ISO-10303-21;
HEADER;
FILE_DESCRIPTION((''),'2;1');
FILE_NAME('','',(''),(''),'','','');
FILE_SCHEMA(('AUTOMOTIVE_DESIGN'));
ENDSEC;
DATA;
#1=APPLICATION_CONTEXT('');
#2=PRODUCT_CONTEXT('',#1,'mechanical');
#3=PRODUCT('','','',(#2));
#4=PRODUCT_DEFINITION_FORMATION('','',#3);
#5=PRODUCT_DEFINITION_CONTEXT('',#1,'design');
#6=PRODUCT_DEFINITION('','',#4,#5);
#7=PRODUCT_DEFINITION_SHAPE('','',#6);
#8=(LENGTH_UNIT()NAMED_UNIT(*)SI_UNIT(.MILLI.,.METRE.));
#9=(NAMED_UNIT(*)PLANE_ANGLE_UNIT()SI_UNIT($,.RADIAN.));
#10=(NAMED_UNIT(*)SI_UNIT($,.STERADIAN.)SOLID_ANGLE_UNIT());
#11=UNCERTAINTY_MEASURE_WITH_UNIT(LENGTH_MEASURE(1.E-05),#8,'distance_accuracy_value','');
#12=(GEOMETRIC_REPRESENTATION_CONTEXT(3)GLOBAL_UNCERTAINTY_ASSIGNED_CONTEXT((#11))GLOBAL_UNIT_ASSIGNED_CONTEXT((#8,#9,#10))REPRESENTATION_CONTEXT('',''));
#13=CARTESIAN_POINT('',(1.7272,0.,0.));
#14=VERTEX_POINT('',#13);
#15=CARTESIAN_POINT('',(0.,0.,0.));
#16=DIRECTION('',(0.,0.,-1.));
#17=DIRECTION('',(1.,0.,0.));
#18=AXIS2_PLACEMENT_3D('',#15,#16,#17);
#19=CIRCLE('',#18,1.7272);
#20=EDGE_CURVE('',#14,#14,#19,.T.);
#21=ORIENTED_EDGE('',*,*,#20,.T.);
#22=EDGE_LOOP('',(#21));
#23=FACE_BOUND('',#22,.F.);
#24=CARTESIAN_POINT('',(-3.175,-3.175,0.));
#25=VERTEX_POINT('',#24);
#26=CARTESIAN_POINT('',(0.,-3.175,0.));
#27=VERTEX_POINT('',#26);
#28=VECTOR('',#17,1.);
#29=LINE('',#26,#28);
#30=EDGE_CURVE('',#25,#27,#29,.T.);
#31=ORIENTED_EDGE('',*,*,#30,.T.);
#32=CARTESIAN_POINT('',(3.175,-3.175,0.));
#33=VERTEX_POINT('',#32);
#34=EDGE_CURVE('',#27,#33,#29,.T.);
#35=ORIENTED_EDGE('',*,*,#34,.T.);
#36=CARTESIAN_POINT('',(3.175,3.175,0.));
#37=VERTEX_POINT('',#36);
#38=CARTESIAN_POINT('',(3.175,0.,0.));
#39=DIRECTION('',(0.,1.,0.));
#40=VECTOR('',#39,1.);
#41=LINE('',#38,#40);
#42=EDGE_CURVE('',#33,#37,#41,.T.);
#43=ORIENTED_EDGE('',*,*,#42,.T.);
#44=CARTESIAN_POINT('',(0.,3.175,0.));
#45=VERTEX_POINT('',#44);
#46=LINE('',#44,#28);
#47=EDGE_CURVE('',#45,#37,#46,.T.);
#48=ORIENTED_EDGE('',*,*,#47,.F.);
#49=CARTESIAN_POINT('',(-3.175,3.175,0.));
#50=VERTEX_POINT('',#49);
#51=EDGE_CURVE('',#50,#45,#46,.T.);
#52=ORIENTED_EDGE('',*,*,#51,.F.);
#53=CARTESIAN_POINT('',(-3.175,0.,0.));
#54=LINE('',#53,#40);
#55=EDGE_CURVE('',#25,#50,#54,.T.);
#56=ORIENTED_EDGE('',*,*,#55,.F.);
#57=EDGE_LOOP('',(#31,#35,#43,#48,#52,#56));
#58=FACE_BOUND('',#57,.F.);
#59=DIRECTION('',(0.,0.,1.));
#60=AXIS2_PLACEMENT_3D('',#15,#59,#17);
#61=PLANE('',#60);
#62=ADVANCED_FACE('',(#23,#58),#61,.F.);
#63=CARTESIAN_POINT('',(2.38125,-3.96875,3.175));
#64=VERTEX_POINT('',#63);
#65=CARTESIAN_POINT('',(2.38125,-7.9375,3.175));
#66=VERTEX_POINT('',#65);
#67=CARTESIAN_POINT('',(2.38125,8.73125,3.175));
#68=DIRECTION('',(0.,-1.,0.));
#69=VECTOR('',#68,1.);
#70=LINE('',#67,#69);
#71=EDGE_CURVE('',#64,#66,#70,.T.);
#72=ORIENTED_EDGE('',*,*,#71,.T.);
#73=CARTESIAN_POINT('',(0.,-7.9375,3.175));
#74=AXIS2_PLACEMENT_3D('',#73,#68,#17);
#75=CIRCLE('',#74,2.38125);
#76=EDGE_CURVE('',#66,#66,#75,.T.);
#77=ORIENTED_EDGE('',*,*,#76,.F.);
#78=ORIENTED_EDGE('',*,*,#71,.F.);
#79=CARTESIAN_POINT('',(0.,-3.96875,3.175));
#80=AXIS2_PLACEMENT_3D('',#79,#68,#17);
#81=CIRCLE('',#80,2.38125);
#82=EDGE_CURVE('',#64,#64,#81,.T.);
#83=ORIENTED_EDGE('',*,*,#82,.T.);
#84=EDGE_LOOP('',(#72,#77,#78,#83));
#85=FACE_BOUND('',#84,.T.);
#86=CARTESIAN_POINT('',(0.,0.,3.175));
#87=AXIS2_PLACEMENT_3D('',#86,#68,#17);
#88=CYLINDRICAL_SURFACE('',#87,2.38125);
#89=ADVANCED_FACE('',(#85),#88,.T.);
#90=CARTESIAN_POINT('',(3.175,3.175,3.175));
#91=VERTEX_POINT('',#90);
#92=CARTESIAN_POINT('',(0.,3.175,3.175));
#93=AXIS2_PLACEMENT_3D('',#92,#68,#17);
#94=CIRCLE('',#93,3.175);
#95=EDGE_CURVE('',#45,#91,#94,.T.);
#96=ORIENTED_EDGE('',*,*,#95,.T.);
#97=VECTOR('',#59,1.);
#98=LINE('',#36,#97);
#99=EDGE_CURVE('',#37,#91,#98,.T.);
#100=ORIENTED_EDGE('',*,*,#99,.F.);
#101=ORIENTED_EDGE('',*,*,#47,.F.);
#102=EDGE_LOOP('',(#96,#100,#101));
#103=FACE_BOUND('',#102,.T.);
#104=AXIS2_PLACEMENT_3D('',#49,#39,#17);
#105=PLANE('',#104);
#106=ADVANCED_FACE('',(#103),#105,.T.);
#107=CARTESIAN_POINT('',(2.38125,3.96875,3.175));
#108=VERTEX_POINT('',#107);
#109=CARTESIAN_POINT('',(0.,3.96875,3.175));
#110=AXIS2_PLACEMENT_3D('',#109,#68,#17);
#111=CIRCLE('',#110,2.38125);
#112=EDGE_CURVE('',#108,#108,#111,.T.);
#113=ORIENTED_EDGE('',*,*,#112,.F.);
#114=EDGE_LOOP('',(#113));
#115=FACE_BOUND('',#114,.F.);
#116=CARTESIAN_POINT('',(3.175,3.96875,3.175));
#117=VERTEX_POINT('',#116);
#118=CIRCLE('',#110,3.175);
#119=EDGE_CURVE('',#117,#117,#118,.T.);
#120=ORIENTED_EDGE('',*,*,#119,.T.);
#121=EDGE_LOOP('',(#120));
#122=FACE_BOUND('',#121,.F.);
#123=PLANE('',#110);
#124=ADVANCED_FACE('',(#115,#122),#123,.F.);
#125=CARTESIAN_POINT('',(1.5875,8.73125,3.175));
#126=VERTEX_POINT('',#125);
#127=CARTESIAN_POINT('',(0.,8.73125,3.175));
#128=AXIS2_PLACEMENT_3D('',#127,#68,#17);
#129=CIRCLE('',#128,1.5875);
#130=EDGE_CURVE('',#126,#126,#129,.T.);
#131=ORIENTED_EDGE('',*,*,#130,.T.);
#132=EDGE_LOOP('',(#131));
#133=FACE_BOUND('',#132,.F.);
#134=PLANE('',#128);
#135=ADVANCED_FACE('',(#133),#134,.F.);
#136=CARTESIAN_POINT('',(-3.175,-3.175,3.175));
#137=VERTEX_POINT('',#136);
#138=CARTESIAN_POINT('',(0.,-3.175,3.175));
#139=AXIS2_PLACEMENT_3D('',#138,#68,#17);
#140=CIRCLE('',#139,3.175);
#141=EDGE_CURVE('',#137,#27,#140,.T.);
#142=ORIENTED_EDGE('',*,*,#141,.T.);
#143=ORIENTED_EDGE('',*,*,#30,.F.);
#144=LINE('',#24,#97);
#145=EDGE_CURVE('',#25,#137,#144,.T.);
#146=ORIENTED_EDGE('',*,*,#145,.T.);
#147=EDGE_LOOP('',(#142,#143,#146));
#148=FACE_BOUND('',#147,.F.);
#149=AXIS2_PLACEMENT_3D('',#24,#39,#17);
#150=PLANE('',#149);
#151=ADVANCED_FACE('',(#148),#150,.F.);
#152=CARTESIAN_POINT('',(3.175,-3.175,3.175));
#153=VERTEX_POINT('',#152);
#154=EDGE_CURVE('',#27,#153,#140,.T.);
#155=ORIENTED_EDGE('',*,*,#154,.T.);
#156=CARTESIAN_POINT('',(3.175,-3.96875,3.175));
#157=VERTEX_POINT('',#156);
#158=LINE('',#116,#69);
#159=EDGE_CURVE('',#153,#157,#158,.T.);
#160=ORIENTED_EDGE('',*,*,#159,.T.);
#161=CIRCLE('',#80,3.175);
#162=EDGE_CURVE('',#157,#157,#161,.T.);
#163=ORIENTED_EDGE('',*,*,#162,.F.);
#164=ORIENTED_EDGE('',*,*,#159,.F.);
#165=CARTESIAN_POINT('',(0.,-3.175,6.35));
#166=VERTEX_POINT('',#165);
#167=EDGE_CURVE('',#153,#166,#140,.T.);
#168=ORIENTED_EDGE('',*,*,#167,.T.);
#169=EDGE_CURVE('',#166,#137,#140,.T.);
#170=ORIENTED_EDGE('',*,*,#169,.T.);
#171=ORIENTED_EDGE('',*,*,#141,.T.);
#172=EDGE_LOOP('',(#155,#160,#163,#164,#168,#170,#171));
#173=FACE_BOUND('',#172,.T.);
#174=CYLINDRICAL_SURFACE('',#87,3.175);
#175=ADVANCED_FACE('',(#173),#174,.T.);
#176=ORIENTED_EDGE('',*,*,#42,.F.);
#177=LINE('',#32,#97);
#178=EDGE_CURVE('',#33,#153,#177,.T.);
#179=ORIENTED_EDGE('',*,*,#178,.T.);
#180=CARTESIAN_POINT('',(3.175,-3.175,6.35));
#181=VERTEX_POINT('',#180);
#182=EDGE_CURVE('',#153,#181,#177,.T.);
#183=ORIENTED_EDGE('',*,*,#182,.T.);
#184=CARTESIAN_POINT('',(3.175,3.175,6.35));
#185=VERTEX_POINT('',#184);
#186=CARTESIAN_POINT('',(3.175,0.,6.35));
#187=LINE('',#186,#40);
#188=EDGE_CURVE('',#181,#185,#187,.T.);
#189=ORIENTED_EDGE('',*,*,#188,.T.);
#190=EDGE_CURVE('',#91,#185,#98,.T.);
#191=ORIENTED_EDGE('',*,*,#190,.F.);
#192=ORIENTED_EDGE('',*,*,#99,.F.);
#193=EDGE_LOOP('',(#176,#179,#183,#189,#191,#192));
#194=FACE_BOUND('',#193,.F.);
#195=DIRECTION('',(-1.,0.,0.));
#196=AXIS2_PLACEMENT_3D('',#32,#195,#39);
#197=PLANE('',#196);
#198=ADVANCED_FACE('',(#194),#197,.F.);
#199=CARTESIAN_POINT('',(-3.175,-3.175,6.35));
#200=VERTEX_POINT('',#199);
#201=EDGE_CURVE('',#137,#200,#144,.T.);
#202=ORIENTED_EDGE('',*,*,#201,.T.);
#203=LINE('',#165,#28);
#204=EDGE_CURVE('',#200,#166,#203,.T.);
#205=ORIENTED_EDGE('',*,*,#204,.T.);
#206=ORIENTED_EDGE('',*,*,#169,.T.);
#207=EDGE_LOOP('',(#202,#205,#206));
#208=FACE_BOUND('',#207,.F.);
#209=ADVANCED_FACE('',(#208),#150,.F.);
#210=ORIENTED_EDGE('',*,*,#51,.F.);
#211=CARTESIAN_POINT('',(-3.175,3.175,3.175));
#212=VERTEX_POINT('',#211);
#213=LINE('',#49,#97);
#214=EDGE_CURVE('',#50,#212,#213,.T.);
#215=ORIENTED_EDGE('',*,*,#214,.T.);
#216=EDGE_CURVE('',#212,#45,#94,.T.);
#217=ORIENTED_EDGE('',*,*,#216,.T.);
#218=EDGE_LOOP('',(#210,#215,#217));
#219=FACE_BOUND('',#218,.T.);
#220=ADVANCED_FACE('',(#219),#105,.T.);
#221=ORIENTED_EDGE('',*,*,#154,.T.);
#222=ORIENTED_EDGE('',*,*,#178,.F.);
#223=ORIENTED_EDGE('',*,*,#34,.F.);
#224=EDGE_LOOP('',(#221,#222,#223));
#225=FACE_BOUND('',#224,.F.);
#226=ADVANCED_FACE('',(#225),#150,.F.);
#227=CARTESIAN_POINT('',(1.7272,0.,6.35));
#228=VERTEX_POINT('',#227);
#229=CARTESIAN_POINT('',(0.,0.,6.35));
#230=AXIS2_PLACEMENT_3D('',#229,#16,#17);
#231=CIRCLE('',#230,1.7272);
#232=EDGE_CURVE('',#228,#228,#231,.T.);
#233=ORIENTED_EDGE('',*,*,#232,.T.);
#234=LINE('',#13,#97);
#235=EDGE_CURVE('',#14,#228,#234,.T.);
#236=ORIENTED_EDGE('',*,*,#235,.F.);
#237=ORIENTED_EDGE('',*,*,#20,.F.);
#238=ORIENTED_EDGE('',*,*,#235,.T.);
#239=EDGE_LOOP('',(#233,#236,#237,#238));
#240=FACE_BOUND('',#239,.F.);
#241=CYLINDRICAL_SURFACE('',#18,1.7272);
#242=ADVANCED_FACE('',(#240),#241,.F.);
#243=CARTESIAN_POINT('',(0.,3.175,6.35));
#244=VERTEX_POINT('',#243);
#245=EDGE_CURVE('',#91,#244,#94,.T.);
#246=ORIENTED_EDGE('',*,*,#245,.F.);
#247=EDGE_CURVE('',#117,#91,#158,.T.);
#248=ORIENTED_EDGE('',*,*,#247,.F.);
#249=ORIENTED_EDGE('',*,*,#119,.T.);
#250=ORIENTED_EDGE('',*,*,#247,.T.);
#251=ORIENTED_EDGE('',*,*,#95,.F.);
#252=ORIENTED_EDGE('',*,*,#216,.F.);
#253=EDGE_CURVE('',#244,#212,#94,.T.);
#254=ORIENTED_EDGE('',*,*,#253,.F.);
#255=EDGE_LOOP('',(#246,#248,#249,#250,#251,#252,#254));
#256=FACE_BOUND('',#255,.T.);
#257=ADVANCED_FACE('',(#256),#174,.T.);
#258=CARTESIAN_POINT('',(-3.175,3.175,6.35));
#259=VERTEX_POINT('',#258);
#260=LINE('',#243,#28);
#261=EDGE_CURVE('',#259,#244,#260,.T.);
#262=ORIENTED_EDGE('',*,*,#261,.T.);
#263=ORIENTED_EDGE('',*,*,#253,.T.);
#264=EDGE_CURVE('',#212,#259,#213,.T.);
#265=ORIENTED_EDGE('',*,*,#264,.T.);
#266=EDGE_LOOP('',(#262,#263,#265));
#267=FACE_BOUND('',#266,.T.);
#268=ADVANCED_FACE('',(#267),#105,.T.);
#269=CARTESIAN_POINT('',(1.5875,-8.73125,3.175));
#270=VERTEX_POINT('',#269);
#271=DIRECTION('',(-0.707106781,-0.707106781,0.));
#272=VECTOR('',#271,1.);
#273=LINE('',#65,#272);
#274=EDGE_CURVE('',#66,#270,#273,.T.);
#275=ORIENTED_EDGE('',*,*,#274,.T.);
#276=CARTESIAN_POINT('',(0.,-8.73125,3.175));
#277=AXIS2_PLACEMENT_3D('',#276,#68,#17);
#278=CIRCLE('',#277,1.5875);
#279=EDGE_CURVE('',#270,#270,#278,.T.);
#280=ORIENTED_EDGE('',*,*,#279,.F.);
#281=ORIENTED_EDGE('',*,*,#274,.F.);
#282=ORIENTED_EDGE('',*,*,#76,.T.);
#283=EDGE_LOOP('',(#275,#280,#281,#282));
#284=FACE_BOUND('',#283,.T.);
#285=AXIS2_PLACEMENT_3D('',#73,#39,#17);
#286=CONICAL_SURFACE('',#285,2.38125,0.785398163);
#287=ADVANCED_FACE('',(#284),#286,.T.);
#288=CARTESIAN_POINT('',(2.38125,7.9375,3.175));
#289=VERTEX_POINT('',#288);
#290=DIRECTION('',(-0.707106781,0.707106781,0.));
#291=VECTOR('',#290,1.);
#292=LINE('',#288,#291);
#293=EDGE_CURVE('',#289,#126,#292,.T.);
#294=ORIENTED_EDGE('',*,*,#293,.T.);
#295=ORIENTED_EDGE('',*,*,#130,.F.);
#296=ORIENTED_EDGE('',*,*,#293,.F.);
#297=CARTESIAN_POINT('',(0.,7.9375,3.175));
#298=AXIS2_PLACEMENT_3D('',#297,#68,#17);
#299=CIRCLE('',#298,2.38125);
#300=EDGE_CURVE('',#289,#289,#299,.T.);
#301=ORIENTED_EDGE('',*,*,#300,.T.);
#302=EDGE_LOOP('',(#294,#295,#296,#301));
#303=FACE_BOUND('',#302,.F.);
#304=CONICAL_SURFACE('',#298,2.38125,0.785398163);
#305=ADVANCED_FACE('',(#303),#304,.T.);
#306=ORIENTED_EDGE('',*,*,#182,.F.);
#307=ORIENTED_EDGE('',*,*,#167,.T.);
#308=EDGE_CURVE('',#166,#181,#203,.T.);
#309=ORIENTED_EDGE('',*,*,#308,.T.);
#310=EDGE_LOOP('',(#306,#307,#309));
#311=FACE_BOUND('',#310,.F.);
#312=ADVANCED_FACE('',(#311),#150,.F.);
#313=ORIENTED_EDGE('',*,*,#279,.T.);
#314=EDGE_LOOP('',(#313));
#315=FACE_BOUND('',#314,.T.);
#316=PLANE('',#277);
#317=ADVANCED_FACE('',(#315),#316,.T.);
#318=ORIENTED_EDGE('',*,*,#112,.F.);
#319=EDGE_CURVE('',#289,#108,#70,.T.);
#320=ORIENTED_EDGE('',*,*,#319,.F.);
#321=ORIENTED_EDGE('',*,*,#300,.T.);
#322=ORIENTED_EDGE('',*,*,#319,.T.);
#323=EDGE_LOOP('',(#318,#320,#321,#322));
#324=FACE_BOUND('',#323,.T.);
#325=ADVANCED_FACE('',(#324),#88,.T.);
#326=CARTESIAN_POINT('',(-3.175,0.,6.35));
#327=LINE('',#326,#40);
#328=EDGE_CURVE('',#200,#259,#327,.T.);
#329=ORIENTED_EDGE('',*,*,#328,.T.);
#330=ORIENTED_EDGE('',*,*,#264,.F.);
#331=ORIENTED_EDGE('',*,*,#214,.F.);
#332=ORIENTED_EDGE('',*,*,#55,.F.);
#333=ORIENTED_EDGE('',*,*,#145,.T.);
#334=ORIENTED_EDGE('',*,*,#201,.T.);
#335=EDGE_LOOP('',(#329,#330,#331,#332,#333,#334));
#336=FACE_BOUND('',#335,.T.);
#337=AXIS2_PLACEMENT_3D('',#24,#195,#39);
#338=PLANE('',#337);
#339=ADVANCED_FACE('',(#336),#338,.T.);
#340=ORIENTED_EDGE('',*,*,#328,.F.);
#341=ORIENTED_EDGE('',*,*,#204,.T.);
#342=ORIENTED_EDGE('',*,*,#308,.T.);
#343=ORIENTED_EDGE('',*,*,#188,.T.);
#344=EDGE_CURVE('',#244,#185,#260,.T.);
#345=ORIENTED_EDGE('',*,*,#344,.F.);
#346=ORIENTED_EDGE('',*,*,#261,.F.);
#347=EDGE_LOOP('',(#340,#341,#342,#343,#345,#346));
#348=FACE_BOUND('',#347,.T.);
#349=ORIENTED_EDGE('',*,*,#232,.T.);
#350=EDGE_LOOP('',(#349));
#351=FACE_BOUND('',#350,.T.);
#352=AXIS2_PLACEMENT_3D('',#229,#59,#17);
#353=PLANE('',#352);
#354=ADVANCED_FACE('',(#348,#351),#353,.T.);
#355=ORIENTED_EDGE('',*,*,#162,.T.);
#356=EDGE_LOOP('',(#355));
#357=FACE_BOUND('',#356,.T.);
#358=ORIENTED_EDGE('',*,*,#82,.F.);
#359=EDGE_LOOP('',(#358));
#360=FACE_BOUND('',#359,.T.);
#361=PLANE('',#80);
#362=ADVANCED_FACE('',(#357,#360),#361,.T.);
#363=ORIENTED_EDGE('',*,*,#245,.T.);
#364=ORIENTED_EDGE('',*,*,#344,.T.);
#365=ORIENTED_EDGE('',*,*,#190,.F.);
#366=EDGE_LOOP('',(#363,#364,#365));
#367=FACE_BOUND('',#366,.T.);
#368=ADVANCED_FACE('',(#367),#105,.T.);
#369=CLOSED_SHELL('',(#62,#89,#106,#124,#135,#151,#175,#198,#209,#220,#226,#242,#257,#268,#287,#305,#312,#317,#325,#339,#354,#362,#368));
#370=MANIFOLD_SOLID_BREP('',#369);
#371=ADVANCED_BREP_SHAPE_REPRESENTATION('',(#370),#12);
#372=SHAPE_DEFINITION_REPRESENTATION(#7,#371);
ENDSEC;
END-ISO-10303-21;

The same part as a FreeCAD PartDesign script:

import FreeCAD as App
import Part
import Sketcher
Q = App.Units.Quantity


def edges_at(feature, points):
    """Names of the edges that pass closest to the given points."""
    edges = feature.Shape.Edges
    near = lambda p: min(range(len(edges)), key=lambda i: edges[i].distToShape(Part.Vertex(*p))[0])
    return sorted({f"Edge{near(p) + 1}" for p in points})

doc = App.newDocument("Part")
body = doc.addObject("PartDesign::Body", "Body")

sketch1 = body.newObject("Sketcher::SketchObject", "Sketch")
sketch1.AttachmentSupport = (doc.getObject("XY_Plane"), [""])
sketch1.MapMode = "FlatFace"
sketch1.addGeometry([
    Part.LineSegment(App.Vector(-3, 3, 0), App.Vector(-3, -3, 0)),
    Part.LineSegment(App.Vector(-3, -3, 0), App.Vector(3, -3, 0)),
    Part.LineSegment(App.Vector(3, -3, 0), App.Vector(3, 3, 0)),
    Part.LineSegment(App.Vector(3, 3, 0), App.Vector(-3, 3, 0)),
], False)
sketch1.addConstraint([
    Sketcher.Constraint("Coincident", 0, 2, 1, 1),
    Sketcher.Constraint("Coincident", 1, 2, 2, 1),
    Sketcher.Constraint("Coincident", 2, 2, 3, 1),
    Sketcher.Constraint("Coincident", 3, 2, 0, 1),
    Sketcher.Constraint("Vertical", 0),
    Sketcher.Constraint("Horizontal", 1),
    Sketcher.Constraint("Vertical", 2),
    Sketcher.Constraint("Horizontal", 3),
    Sketcher.Constraint("Symmetric", 0, 2, 2, 2, -1, 1),
    Sketcher.Constraint("Equal", 3, 0),
    Sketcher.Constraint("DistanceX", 1, 1, 1, 2, Q("0.25 in")),
])
pad1 = body.newObject("PartDesign::Pad", "Pad")
pad1.Profile = sketch1
pad1.Length = Q("0.25 in")

sketch2 = body.newObject("Sketcher::SketchObject", "Sketch001")
sketch2.AttachmentSupport = (doc.getObject("XZ_Plane"), [""])
sketch2.MapMode = "FlatFace"
sketch2.addGeometry(Part.Circle(App.Vector(0, 3.2, 0), App.Vector(0, 0, 1), 3.2), False)
sketch2.addConstraint([
    Sketcher.Constraint("PointOnObject", 0, 3, -2),
    Sketcher.Constraint("Diameter", 0, Q("0.25 in")),
    Sketcher.Constraint("DistanceY", -1, 1, 0, 3, Q("0.125 in")),
])
pad2 = body.newObject("PartDesign::Pad", "Pad001")
pad2.Profile = sketch2
pad2.Length = Q("0.3125 in")
pad2.Midplane = True

sketch3 = body.newObject("Sketcher::SketchObject", "Sketch002")
sketch3.AttachmentSupport = (doc.getObject("XZ_Plane"), [""])
sketch3.MapMode = "FlatFace"
sketch3.addGeometry(Part.Circle(App.Vector(0, 3.2, 0), App.Vector(0, 0, 1), 2.4), False)
sketch3.addConstraint([
    Sketcher.Constraint("PointOnObject", 0, 3, -2),
    Sketcher.Constraint("Diameter", 0, Q("0.1875 in")),
    Sketcher.Constraint("DistanceY", -1, 1, 0, 3, Q("0.125 in")),
])
pad3 = body.newObject("PartDesign::Pad", "Pad002")
pad3.Profile = sketch3
pad3.Length = Q("0.6875 in")
pad3.Midplane = True

sketch4 = body.newObject("Sketcher::SketchObject", "Sketch003")
sketch4.AttachmentSupport = (doc.getObject("XY_Plane"), [""])
sketch4.MapMode = "FlatFace"
sketch4.addGeometry(Part.Circle(App.Vector(0, 0, 0), App.Vector(0, 0, 1), 1.7), False)
sketch4.addConstraint([
    Sketcher.Constraint("Coincident", 0, 3, -1, 1),
    Sketcher.Constraint("Diameter", 0, Q("0.136 in")),
])
pocket1 = body.newObject("PartDesign::Pocket", "Pocket")
pocket1.Profile = sketch4
pocket1.Type = "ThroughAll"
pocket1.Reversed = True
doc.recompute()

chamfer = body.newObject("PartDesign::Chamfer", "Chamfer")
chamfer.Base = (pocket1, edges_at(pocket1, [(-2.381, -8.731, 3.175), (-2.381, 8.731, 3.175)]))
chamfer.Size = Q("0.03125 in")

doc.recompute()
